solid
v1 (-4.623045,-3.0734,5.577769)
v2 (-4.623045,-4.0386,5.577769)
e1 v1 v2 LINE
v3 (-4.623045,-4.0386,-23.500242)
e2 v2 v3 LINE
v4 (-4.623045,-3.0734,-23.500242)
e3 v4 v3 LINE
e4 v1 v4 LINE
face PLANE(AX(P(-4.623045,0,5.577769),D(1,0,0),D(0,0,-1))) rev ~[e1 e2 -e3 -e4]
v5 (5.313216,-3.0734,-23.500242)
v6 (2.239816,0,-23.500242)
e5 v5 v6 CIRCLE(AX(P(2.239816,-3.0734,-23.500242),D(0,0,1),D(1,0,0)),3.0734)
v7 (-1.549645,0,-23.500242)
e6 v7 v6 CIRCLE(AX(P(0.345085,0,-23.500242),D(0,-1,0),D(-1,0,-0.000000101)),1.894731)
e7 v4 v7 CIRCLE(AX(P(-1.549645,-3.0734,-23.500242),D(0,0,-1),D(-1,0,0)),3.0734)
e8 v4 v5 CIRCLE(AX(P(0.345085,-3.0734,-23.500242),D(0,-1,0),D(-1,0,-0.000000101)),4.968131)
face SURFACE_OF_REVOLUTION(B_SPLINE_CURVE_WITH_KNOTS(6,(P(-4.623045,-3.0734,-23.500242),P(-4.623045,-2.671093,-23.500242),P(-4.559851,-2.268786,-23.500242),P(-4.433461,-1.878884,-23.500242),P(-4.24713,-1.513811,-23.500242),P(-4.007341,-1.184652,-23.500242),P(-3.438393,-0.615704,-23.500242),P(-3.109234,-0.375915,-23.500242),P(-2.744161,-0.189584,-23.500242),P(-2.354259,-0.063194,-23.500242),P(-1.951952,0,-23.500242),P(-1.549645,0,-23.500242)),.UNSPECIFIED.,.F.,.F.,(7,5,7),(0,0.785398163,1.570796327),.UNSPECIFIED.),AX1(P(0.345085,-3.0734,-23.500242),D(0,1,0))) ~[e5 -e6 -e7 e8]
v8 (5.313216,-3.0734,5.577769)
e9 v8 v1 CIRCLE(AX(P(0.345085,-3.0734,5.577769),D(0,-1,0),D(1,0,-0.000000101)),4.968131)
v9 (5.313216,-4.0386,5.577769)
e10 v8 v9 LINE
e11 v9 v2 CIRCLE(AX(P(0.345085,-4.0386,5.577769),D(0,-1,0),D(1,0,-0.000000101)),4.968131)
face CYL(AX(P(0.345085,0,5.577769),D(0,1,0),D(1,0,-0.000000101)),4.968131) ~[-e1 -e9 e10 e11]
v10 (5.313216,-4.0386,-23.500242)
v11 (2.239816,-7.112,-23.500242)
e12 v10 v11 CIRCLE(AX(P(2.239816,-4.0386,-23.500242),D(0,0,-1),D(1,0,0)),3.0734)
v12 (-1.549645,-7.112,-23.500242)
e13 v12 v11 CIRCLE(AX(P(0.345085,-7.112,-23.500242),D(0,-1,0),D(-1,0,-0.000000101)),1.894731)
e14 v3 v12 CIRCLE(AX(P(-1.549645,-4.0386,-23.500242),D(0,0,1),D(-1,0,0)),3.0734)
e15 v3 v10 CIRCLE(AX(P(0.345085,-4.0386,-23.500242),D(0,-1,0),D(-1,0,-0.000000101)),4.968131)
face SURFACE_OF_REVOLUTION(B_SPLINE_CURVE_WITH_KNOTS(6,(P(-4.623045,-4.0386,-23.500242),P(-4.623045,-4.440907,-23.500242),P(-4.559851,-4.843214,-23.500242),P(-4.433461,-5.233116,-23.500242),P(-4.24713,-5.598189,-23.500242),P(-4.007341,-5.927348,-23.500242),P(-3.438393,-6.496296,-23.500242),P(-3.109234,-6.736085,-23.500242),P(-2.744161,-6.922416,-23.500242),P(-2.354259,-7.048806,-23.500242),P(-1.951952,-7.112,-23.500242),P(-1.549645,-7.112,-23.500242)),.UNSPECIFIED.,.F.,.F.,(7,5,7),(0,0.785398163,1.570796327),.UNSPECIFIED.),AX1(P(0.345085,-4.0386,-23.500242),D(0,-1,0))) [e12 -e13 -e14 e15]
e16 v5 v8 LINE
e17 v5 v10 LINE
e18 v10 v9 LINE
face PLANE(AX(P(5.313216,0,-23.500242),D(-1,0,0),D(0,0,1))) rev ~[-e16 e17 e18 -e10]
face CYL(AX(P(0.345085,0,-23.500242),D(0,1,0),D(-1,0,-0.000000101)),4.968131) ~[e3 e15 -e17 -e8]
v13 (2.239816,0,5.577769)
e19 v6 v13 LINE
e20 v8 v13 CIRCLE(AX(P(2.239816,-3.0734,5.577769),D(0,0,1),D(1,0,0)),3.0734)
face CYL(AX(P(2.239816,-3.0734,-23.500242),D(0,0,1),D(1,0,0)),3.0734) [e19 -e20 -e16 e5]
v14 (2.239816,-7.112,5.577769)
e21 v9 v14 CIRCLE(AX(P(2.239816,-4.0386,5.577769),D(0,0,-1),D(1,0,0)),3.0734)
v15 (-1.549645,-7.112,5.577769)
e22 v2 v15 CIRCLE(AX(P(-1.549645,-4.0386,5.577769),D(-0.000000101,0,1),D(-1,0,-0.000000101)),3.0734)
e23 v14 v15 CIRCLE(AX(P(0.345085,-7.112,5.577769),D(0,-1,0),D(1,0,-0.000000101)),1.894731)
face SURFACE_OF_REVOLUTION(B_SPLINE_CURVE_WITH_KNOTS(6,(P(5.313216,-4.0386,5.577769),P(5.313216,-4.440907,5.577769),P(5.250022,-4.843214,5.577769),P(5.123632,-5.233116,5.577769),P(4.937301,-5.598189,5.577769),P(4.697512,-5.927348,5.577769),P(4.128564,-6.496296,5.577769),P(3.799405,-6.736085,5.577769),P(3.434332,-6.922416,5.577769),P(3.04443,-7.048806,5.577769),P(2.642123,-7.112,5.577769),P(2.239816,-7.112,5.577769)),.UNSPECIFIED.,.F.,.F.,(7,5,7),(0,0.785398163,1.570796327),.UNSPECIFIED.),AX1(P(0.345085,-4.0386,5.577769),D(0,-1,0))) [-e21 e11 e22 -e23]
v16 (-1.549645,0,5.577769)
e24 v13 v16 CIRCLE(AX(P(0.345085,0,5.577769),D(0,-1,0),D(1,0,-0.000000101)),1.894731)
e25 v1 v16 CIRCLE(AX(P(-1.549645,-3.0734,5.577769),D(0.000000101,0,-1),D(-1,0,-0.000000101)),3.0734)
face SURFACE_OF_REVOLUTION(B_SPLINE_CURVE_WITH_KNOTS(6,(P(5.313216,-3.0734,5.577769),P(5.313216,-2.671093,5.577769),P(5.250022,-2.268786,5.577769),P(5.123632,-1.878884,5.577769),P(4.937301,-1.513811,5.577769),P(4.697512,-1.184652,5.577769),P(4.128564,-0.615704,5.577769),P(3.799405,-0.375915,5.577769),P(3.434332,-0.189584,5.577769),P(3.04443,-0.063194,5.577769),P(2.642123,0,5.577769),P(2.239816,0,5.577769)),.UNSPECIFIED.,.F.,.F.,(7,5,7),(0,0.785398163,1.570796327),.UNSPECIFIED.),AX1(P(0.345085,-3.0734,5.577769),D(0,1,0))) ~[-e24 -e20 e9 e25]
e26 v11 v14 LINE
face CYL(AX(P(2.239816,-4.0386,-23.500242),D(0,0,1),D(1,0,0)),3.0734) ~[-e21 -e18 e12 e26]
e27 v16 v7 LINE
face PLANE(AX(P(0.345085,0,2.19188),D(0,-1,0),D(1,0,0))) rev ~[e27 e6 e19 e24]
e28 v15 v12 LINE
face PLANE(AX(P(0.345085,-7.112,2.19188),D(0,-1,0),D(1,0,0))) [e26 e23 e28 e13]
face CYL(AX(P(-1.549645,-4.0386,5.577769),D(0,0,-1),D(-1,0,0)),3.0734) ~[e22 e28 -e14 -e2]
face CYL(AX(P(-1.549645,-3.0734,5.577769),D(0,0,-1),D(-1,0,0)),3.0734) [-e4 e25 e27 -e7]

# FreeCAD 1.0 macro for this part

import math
import FreeCAD as App
import Part
import Sketcher

V = App.Vector


def edges_at(feature, points):
    """Names of the edges that pass closest to the given points."""
    edges = feature.Shape.Edges
    near = lambda p: min(range(len(edges)), key=lambda i: edges[i].distToShape(Part.Vertex(*p))[0])
    return sorted({f"Edge{near(p) + 1}" for p in points})

doc = App.newDocument("Part")
params = doc.addObject("Spreadsheet::Sheet", "Params")
for row, (alias, value) in enumerate([
    ("pad1_length", "0.28 in"),
    ("fillet_radius", "0.121 in"),
], start=1):
    params.set(f"A{row}", alias)
    params.set(f"B{row}", "=" + value)
    params.setAlias(f"B{row}", alias)

body = doc.addObject("PartDesign::Body", "Body")

# Sketch on XZ plane
sketch1 = body.newObject("Sketcher::SketchObject", "Sketch")
sketch1.AttachmentSupport = (doc.getObject("XZ_Plane"), [""])
sketch1.MapMode = "FlatFace"
sketch1.addGeometry(Part.ArcOfCircle(Part.Circle(V(0.345085, 5.577769, 0), V(0, 0, 1), 4.968131), math.radians(-0.000006), math.radians(180.000006)), False)
sketch1.addGeometry(Part.LineSegment(V(-4.623045, 5.577769, 0), V(-4.623045, -23.500242, 0)), False)
sketch1.addGeometry(Part.ArcOfCircle(Part.Circle(V(0.345085, -23.500242, 0), V(0, 0, 1), 4.968131), math.radians(-179.999994), math.radians(-0.000006)), False)
sketch1.addGeometry(Part.LineSegment(V(5.313216, -23.500242, 0), V(5.313216, 5.577769, 0)), False)
sketch1.addConstraint(Sketcher.Constraint("Tangent", 0, 2, 1, 1))
sketch1.addConstraint(Sketcher.Constraint("Tangent", 1, 2, 2, 1))
sketch1.addConstraint(Sketcher.Constraint("Tangent", 2, 2, 3, 1))
sketch1.addConstraint(Sketcher.Constraint("Tangent", 3, 2, 0, 1))
sketch1.addConstraint(Sketcher.Constraint("Vertical", 1))
sketch1.addConstraint(Sketcher.Constraint("Vertical", 3))
sketch1.addConstraint(Sketcher.Constraint("Radius", 0, 4.968131))
sketch1.addConstraint(Sketcher.Constraint("DistanceY", 1, 2, 1, 1, 29.078011))
sketch1.addConstraint(Sketcher.Constraint("DistanceY", -1, 1, 0, 3, 5.577769))
sketch1.addConstraint(Sketcher.Constraint("DistanceX", -1, 1, 0, 3, 0.345085))
pad1 = body.newObject("PartDesign::Pad", "Pad")
pad1.Profile = sketch1
pad1.setExpression("Length", "Params.pad1_length")
doc.recompute()

fillet = body.newObject("PartDesign::Fillet", "Fillet")
fillet.Base = (pad1, edges_at(pad1, [
    (5.313, -7.112, -8.961),
    (5.313, 0, -8.961),
    (0.345, -7.112, 10.546),
    (0.345, 0, 10.546),
    (0.345, -7.112, -28.468),
    (-4.623, 0, -8.961),
    (-4.623, -7.112, -8.961),
]))
fillet.setExpression("Radius", "Params.fillet_radius")

doc.recompute()
